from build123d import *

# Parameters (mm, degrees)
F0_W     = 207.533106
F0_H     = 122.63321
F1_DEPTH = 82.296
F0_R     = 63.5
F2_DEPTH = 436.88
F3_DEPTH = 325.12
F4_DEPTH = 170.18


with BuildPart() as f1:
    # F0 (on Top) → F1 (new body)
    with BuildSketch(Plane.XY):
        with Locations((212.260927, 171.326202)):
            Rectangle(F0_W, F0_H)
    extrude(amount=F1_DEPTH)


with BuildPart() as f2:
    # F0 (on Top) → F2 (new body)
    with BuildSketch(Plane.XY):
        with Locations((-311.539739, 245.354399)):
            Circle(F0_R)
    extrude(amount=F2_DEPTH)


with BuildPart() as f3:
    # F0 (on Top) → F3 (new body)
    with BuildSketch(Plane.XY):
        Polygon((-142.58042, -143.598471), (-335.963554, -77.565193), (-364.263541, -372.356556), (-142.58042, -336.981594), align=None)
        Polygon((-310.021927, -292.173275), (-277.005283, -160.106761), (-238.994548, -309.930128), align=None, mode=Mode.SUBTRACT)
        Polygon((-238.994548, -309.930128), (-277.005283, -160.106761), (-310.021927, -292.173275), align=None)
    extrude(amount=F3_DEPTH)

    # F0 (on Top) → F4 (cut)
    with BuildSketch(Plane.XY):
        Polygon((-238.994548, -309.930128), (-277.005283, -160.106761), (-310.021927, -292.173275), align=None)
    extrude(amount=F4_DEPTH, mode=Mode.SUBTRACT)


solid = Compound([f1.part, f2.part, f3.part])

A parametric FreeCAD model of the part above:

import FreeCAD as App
import Part
import Sketcher
Q = App.Units.Quantity

doc = App.newDocument("Part")
body = doc.addObject("PartDesign::Body", "Body")

# Sketch on XY plane
sketch1 = doc.addObject("Sketcher::SketchObject", "Sketch")
body.addObject(sketch1)
sketch1.AttachmentSupport = (doc.XY_Plane, [""])
sketch1.MapMode = "FlatFace"
sketch1.addGeometry([
    Part.LineSegment(App.Vector(108, 233, 0), App.Vector(108, 110, 0)),
    Part.LineSegment(App.Vector(108, 110, 0), App.Vector(316, 110, 0)),
    Part.LineSegment(App.Vector(316, 110, 0), App.Vector(316, 233, 0)),
    Part.LineSegment(App.Vector(316, 233, 0), App.Vector(108, 233, 0)),
], False)
sketch1.addConstraint([
    Sketcher.Constraint("Coincident", 0, 2, 1, 1),
    Sketcher.Constraint("Coincident", 1, 2, 2, 1),
    Sketcher.Constraint("Coincident", 2, 2, 3, 1),
    Sketcher.Constraint("Coincident", 3, 2, 0, 1),
    Sketcher.Constraint("Vertical", 0),
    Sketcher.Constraint("Horizontal", 1),
    Sketcher.Constraint("Vertical", 2),
    Sketcher.Constraint("Horizontal", 3),
    Sketcher.Constraint("DistanceY", 0, 2, 0, 1, 122.63321),
    Sketcher.Constraint("DistanceX", 1, 1, 1, 2, 207.533106),
    Sketcher.Constraint("DistanceX", -1, 1, 1, 2, 316.02748),
    Sketcher.Constraint("DistanceY", -1, 1, 0, 2, 110.009597),
])
pad1 = doc.addObject("PartDesign::Pad", "Pad")
body.addObject(pad1)
pad1.Profile = sketch1
pad1.Length = Q("3.24 in")
body2 = doc.addObject("PartDesign::Body", "Body001")

# Sketch on XY plane
sketch2 = doc.addObject("Sketcher::SketchObject", "Sketch001")
body2.addObject(sketch2)
sketch2.AttachmentSupport = (doc.getObject("XY_Plane001"), [""])
sketch2.MapMode = "FlatFace"
sketch2.addGeometry(Part.Circle(App.Vector(-312, 245, 0), App.Vector(0, 0, 1), 64), False)
sketch2.addConstraint([
    Sketcher.Constraint("Diameter", 0, Q("5 in")),
    Sketcher.Constraint("DistanceY", -1, 1, 0, 3, 245.354399),
    Sketcher.Constraint("DistanceX", 0, 3, -1, 1, 311.539739),
])
pad2 = doc.addObject("PartDesign::Pad", "Pad001")
body2.addObject(pad2)
pad2.Profile = sketch2
pad2.Length = Q("17.2 in")
body3 = doc.addObject("PartDesign::Body", "Body002")

# Sketch on XY plane
sketch3 = doc.addObject("Sketcher::SketchObject", "Sketch002")
body3.addObject(sketch3)
sketch3.AttachmentSupport = (doc.getObject("XY_Plane002"), [""])
sketch3.MapMode = "FlatFace"
sketch3.addGeometry([
    Part.LineSegment(App.Vector(-143, -144, 0), App.Vector(-336, -78, 0)),
    Part.LineSegment(App.Vector(-336, -78, 0), App.Vector(-364, -372, 0)),
    Part.LineSegment(App.Vector(-364, -372, 0), App.Vector(-143, -337, 0)),
    Part.LineSegment(App.Vector(-143, -337, 0), App.Vector(-143, -144, 0)),
], False)
sketch3.addConstraint([
    Sketcher.Constraint("Coincident", 0, 2, 1, 1),
    Sketcher.Constraint("Coincident", 1, 2, 2, 1),
    Sketcher.Constraint("Coincident", 2, 2, 3, 1),
    Sketcher.Constraint("Coincident", 3, 2, 0, 1),
    Sketcher.Constraint("Vertical", 3),
    Sketcher.Constraint("DistanceY", 2, 2, 0, 2, 259.416401),
    Sketcher.Constraint("Distance", 0, 204.346349),
    Sketcher.Constraint("Distance", 2, 224.487848),
    Sketcher.Constraint("DistanceY", 3, 1, 3, 2, 193.383123),
    Sketcher.Constraint("DistanceX", 1, 2, -1, 1, 364.263541),
    Sketcher.Constraint("DistanceX", 2, 2, -1, 1, 142.58042),
    Sketcher.Constraint("DistanceY", 3, 2, -1, 1, 143.598471),
])
pad3 = doc.addObject("PartDesign::Pad", "Pad002")
body3.addObject(pad3)
pad3.Profile = sketch3
pad3.Length = Q("12.8 in")

# Sketch on XY plane
sketch4 = doc.addObject("Sketcher::SketchObject", "Sketch003")
body3.addObject(sketch4)
sketch4.AttachmentSupport = (doc.getObject("XY_Plane002"), [""])
sketch4.MapMode = "FlatFace"
sketch4.addGeometry([
    Part.LineSegment(App.Vector(-239, -310, 0), App.Vector(-277, -160, 0)),
    Part.LineSegment(App.Vector(-277, -160, 0), App.Vector(-310, -292, 0)),
    Part.LineSegment(App.Vector(-310, -292, 0), App.Vector(-239, -310, 0)),
], False)
sketch4.addConstraint([
    Sketcher.Constraint("Coincident", 0, 2, 1, 1),
    Sketcher.Constraint("Coincident", 1, 2, 2, 1),
    Sketcher.Constraint("Coincident", 2, 2, 0, 1),
    Sketcher.Constraint("Perpendicular", 1, 2),
    Sketcher.Constraint("Distance", 0, 154.569911),
    Sketcher.Constraint("Distance", 1, 136.13105),
    Sketcher.Constraint("DistanceY", 0, 2, -1, 1, 160.106761),
    Sketcher.Constraint("DistanceX", 2, 2, -1, 1, 238.994548),
    Sketcher.Constraint("DistanceY", 2, 2, -1, 1, 309.930128),
])
pocket1 = doc.addObject("PartDesign::Pocket", "Pocket")
body3.addObject(pocket1)
pocket1.Profile = sketch4
pocket1.Length = Q("6.7 in")
pocket1.Reversed = True

doc.recompute()
